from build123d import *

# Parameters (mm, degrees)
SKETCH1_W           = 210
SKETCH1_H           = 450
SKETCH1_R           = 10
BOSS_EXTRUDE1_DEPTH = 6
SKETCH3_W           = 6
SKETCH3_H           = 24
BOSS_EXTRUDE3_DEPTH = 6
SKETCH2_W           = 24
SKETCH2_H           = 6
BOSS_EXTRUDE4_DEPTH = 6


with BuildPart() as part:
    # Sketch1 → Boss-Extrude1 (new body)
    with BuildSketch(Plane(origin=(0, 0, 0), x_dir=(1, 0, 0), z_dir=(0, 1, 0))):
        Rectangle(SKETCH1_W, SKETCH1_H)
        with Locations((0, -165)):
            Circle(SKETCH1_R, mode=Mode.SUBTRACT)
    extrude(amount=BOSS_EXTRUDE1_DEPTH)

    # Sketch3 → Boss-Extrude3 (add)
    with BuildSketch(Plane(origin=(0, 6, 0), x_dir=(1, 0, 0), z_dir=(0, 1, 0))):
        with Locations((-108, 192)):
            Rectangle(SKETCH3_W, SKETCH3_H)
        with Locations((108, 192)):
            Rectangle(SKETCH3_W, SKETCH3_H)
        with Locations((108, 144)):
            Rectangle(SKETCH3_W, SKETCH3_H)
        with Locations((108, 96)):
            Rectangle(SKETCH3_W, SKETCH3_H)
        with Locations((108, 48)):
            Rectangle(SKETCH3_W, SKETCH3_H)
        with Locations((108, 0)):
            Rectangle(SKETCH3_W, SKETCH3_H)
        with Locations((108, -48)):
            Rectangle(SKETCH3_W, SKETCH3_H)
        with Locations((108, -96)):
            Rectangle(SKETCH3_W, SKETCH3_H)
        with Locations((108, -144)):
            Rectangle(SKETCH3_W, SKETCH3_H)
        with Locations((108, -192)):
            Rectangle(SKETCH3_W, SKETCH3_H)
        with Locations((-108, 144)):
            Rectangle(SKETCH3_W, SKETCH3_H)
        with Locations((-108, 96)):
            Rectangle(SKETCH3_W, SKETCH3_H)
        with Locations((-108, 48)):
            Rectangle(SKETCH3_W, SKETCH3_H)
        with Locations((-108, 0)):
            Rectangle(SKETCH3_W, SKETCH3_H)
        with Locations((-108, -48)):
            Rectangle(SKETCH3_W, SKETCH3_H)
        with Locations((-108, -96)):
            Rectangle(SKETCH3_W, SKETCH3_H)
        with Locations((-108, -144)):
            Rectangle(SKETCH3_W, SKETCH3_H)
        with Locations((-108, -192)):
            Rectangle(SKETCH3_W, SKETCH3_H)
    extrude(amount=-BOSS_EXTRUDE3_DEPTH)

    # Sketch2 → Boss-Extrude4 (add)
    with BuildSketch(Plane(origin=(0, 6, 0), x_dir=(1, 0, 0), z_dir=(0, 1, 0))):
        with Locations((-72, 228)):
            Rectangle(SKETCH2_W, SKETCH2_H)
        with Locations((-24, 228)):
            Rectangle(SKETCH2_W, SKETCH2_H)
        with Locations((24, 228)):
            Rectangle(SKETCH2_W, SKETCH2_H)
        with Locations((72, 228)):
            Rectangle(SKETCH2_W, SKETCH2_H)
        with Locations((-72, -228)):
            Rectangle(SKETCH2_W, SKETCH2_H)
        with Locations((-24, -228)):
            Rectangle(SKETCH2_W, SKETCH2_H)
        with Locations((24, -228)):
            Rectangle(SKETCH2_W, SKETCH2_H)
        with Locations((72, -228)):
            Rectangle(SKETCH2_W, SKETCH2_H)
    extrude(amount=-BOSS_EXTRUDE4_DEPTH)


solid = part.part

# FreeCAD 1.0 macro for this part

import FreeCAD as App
import Part
import Sketcher

V = App.Vector
Q = App.Units.Quantity


def add_polygon(sketch, points):
    """Adds a closed chain of lines whose ends are joined by coincident constraints."""
    first, n = sketch.GeometryCount, len(points)
    for a, b in zip(points, points[1:] + points[:1]):
        sketch.addGeometry(Part.LineSegment(App.Vector(*a, 0), App.Vector(*b, 0)), False)
    for i in range(n):
        sketch.addConstraint(Sketcher.Constraint("Coincident", first + i, 2, first + (i + 1) % n, 1))

doc = App.newDocument("Part")
params = doc.addObject("Spreadsheet::Sheet", "Params")
for row, (alias, value) in enumerate([
    ("sketch1_diameter", "20 mm"),
    ("sketch1_width", "210 mm"),
    ("sketch1_height", "450 mm"),
    ("pad1_length", "6 mm"),
    ("sketch2_width", "6 mm"),
    ("sketch2_height", "24 mm"),
    ("pad2_length", "6 mm"),
    ("sketch3_width", "24 mm"),
    ("sketch3_height", "6 mm"),
    ("pad3_length", "6 mm"),
], start=1):
    params.set(f"A{row}", alias)
    params.set(f"B{row}", "=" + value)
    params.setAlias(f"B{row}", alias)

body = doc.addObject("PartDesign::Body", "Body")

sketch1 = doc.addObject("Sketcher::SketchObject", "Sketch")
body.addObject(sketch1)
sketch1.AttachmentSupport = (doc.XZ_Plane, [""])
sketch1.MapMode = "FlatFace"
add_polygon(sketch1, [(-105, -225), (-105, 225), (105, 225), (105, -225)])
sketch1.addGeometry(Part.Circle(V(0, 165, 0), V(0, 0, 1), 10), False)
sketch1.addConstraint(Sketcher.Constraint("Vertical", 0))
sketch1.addConstraint(Sketcher.Constraint("Horizontal", 1))
sketch1.addConstraint(Sketcher.Constraint("Vertical", 2))
sketch1.addConstraint(Sketcher.Constraint("Horizontal", 3))
sketch1.addConstraint(Sketcher.Constraint("Symmetric", 0, 2, 2, 2, -1, 1))
sketch1.addConstraint(Sketcher.Constraint("PointOnObject", 4, 3, -2))
sketch1.addConstraint(Sketcher.Constraint("Diameter", 4, Q("20 mm")))
sketch1.addConstraint(Sketcher.Constraint("DistanceX", 1, 1, 1, 2, Q("210 mm")))
sketch1.addConstraint(Sketcher.Constraint("DistanceY", 0, 1, 0, 2, Q("450 mm")))
sketch1.addConstraint(Sketcher.Constraint("DistanceY", -1, 1, 4, 3, Q("165 mm")))
sketch1.setExpression("Constraints[10]", "Params.sketch1_diameter")
sketch1.setExpression("Constraints[11]", "Params.sketch1_width")
sketch1.setExpression("Constraints[12]", "Params.sketch1_height")
pad1 = doc.addObject("PartDesign::Pad", "Pad")
body.addObject(pad1)
pad1.Profile = sketch1
pad1.setExpression("Length", "Params.pad1_length")
pad1.Reversed = True

sketch2 = doc.addObject("Sketcher::SketchObject", "Sketch001")
body.addObject(sketch2)
sketch2.AttachmentSupport = (doc.XZ_Plane, [""])
sketch2.MapMode = "FlatFace"
sketch2.AttachmentOffset = App.Placement(V(0, 0, -6), App.Rotation())
add_polygon(sketch2, [(-111, -204), (-111, -180), (-105, -180), (-105, -204)])
add_polygon(sketch2, [(105, -204), (105, -180), (111, -180), (111, -204)])
add_polygon(sketch2, [(105, -156), (105, -132), (111, -132), (111, -156)])
add_polygon(sketch2, [(105, -108), (105, -84), (111, -84), (111, -108)])
add_polygon(sketch2, [(105, -60), (105, -36), (111, -36), (111, -60)])
add_polygon(sketch2, [(105, -12), (105, 12), (111, 12), (111, -12)])
add_polygon(sketch2, [(105, 36), (105, 60), (111, 60), (111, 36)])
add_polygon(sketch2, [(105, 84), (105, 108), (111, 108), (111, 84)])
add_polygon(sketch2, [(105, 132), (105, 156), (111, 156), (111, 132)])
add_polygon(sketch2, [(105, 180), (105, 204), (111, 204), (111, 180)])
add_polygon(sketch2, [(-111, -156), (-111, -132), (-105, -132), (-105, -156)])
add_polygon(sketch2, [(-111, -108), (-111, -84), (-105, -84), (-105, -108)])
add_polygon(sketch2, [(-111, -60), (-111, -36), (-105, -36), (-105, -60)])
add_polygon(sketch2, [(-111, -12), (-111, 12), (-105, 12), (-105, -12)])
add_polygon(sketch2, [(-111, 36), (-111, 60), (-105, 60), (-105, 36)])
add_polygon(sketch2, [(-111, 84), (-111, 108), (-105, 108), (-105, 84)])
add_polygon(sketch2, [(-111, 132), (-111, 156), (-105, 156), (-105, 132)])
add_polygon(sketch2, [(-111, 180), (-111, 204), (-105, 204), (-105, 180)])
sketch2.addConstraint(Sketcher.Constraint("Vertical", 0))
sketch2.addConstraint(Sketcher.Constraint("Horizontal", 1))
sketch2.addConstraint(Sketcher.Constraint("Vertical", 2))
sketch2.addConstraint(Sketcher.Constraint("Horizontal", 3))
sketch2.addConstraint(Sketcher.Constraint("Vertical", 4))
sketch2.addConstraint(Sketcher.Constraint("Horizontal", 5))
sketch2.addConstraint(Sketcher.Constraint("Vertical", 6))
sketch2.addConstraint(Sketcher.Constraint("Horizontal", 7))
sketch2.addConstraint(Sketcher.Constraint("Vertical", 8))
sketch2.addConstraint(Sketcher.Constraint("Horizontal", 9))
sketch2.addConstraint(Sketcher.Constraint("Vertical", 10))
sketch2.addConstraint(Sketcher.Constraint("Horizontal", 11))
sketch2.addConstraint(Sketcher.Constraint("Vertical", 12))
sketch2.addConstraint(Sketcher.Constraint("Horizontal", 13))
sketch2.addConstraint(Sketcher.Constraint("Vertical", 14))
sketch2.addConstraint(Sketcher.Constraint("Horizontal", 15))
sketch2.addConstraint(Sketcher.Constraint("Vertical", 16))
sketch2.addConstraint(Sketcher.Constraint("Horizontal", 17))
sketch2.addConstraint(Sketcher.Constraint("Vertical", 18))
sketch2.addConstraint(Sketcher.Constraint("Horizontal", 19))
sketch2.addConstraint(Sketcher.Constraint("Vertical", 20))
sketch2.addConstraint(Sketcher.Constraint("Horizontal", 21))
sketch2.addConstraint(Sketcher.Constraint("Vertical", 22))
sketch2.addConstraint(Sketcher.Constraint("Horizontal", 23))
sketch2.addConstraint(Sketcher.Constraint("Vertical", 24))
sketch2.addConstraint(Sketcher.Constraint("Horizontal", 25))
sketch2.addConstraint(Sketcher.Constraint("Vertical", 26))
sketch2.addConstraint(Sketcher.Constraint("Horizontal", 27))
sketch2.addConstraint(Sketcher.Constraint("Vertical", 28))
sketch2.addConstraint(Sketcher.Constraint("Horizontal", 29))
sketch2.addConstraint(Sketcher.Constraint("Vertical", 30))
sketch2.addConstraint(Sketcher.Constraint("Horizontal", 31))
sketch2.addConstraint(Sketcher.Constraint("Vertical", 32))
sketch2.addConstraint(Sketcher.Constraint("Horizontal", 33))
sketch2.addConstraint(Sketcher.Constraint("Vertical", 34))
sketch2.addConstraint(Sketcher.Constraint("Horizontal", 35))
sketch2.addConstraint(Sketcher.Constraint("Vertical", 36))
sketch2.addConstraint(Sketcher.Constraint("Horizontal", 37))
sketch2.addConstraint(Sketcher.Constraint("Vertical", 38))
sketch2.addConstraint(Sketcher.Constraint("Horizontal", 39))
sketch2.addConstraint(Sketcher.Constraint("Vertical", 40))
sketch2.addConstraint(Sketcher.Constraint("Horizontal", 41))
sketch2.addConstraint(Sketcher.Constraint("Vertical", 42))
sketch2.addConstraint(Sketcher.Constraint("Horizontal", 43))
sketch2.addConstraint(Sketcher.Constraint("Vertical", 44))
sketch2.addConstraint(Sketcher.Constraint("Horizontal", 45))
sketch2.addConstraint(Sketcher.Constraint("Vertical", 46))
sketch2.addConstraint(Sketcher.Constraint("Horizontal", 47))
sketch2.addConstraint(Sketcher.Constraint("Vertical", 48))
sketch2.addConstraint(Sketcher.Constraint("Horizontal", 49))
sketch2.addConstraint(Sketcher.Constraint("Vertical", 50))
sketch2.addConstraint(Sketcher.Constraint("Horizontal", 51))
sketch2.addConstraint(Sketcher.Constraint("Vertical", 52))
sketch2.addConstraint(Sketcher.Constraint("Horizontal", 53))
sketch2.addConstraint(Sketcher.Constraint("Vertical", 54))
sketch2.addConstraint(Sketcher.Constraint("Horizontal", 55))
sketch2.addConstraint(Sketcher.Constraint("Vertical", 56))
sketch2.addConstraint(Sketcher.Constraint("Horizontal", 57))
sketch2.addConstraint(Sketcher.Constraint("Vertical", 58))
sketch2.addConstraint(Sketcher.Constraint("Horizontal", 59))
sketch2.addConstraint(Sketcher.Constraint("Vertical", 60))
sketch2.addConstraint(Sketcher.Constraint("Horizontal", 61))
sketch2.addConstraint(Sketcher.Constraint("Vertical", 62))
sketch2.addConstraint(Sketcher.Constraint("Horizontal", 63))
sketch2.addConstraint(Sketcher.Constraint("Vertical", 64))
sketch2.addConstraint(Sketcher.Constraint("Horizontal", 65))
sketch2.addConstraint(Sketcher.Constraint("Vertical", 66))
sketch2.addConstraint(Sketcher.Constraint("Horizontal", 67))
sketch2.addConstraint(Sketcher.Constraint("Vertical", 68))
sketch2.addConstraint(Sketcher.Constraint("Horizontal", 69))
sketch2.addConstraint(Sketcher.Constraint("Vertical", 70))
sketch2.addConstraint(Sketcher.Constraint("Horizontal", 71))
sketch2.addConstraint(Sketcher.Constraint("Symmetric", 2, 2, 36, 2, -1, 1))
sketch2.addConstraint(Sketcher.Constraint("Symmetric", 0, 2, 38, 2, -1, 1))
sketch2.addConstraint(Sketcher.Constraint("Symmetric", 34, 2, 40, 2, -1, 1))
sketch2.addConstraint(Sketcher.Constraint("Symmetric", 32, 2, 42, 2, -1, 1))
sketch2.addConstraint(Sketcher.Constraint("Symmetric", 30, 2, 44, 2, -1, 1))
sketch2.addConstraint(Sketcher.Constraint("Symmetric", 28, 2, 46, 2, -1, 1))
sketch2.addConstraint(Sketcher.Constraint("Symmetric", 26, 2, 48, 2, -1, 1))
sketch2.addConstraint(Sketcher.Constraint("Symmetric", 24, 2, 50, 2, -1, 1))
sketch2.addConstraint(Sketcher.Constraint("Symmetric", 22, 2, 52, 2, -1, 1))
sketch2.addConstraint(Sketcher.Constraint("Symmetric", 20, 2, 54, 2, -1, 1))
sketch2.addConstraint(Sketcher.Constraint("Symmetric", 18, 2, 56, 2, -1, 1))
sketch2.addConstraint(Sketcher.Constraint("Symmetric", 16, 2, 58, 2, -1, 1))
sketch2.addConstraint(Sketcher.Constraint("Symmetric", 14, 2, 60, 2, -1, 1))
sketch2.addConstraint(Sketcher.Constraint("Symmetric", 12, 2, 62, 2, -1, 1))
sketch2.addConstraint(Sketcher.Constraint("Symmetric", 10, 2, 64, 2, -1, 1))
sketch2.addConstraint(Sketcher.Constraint("Symmetric", 8, 2, 66, 2, -1, 1))
sketch2.addConstraint(Sketcher.Constraint("Symmetric", 6, 2, 68, 2, -1, 1))
sketch2.addConstraint(Sketcher.Constraint("Symmetric", 4, 2, 70, 2, -1, 1))
sketch2.addConstraint(Sketcher.Constraint("Symmetric", 1, 2, 4, 2, -2))
sketch2.addConstraint(Sketcher.Constraint("Symmetric", 3, 2, 6, 2, -2))
sketch2.addConstraint(Sketcher.Constraint("Symmetric", 9, 2, 40, 2, -2))
sketch2.addConstraint(Sketcher.Constraint("Symmetric", 11, 2, 42, 2, -2))
sketch2.addConstraint(Sketcher.Constraint("Symmetric", 13, 2, 44, 2, -2))
sketch2.addConstraint(Sketcher.Constraint("Symmetric", 15, 2, 46, 2, -2))
sketch2.addConstraint(Sketcher.Constraint("Symmetric", 17, 2, 48, 2, -2))
sketch2.addConstraint(Sketcher.Constraint("Symmetric", 19, 2, 50, 2, -2))
sketch2.addConstraint(Sketcher.Constraint("Horizontal", 21, 2, 52, 2))
sketch2.addConstraint(Sketcher.Constraint("Vertical", 7, 2, 8, 2))
sketch2.addConstraint(Sketcher.Constraint("Vertical", 6, 2, 9, 2))
sketch2.addConstraint(Sketcher.Constraint("Vertical", 11, 2, 12, 2))
sketch2.addConstraint(Sketcher.Constraint("Vertical", 10, 2, 13, 2))
sketch2.addConstraint(Sketcher.Constraint("Vertical", 15, 2, 16, 2))
sketch2.addConstraint(Sketcher.Constraint("Vertical", 14, 2, 17, 2))
sketch2.addConstraint(Sketcher.Constraint("Vertical", 19, 2, 20, 2))
sketch2.addConstraint(Sketcher.Constraint("Vertical", 18, 2, 21, 2))
sketch2.addConstraint(Sketcher.Constraint("Equal", 6, 8))
sketch2.addConstraint(Sketcher.Constraint("Equal", 10, 12))
sketch2.addConstraint(Sketcher.Constraint("Equal", 14, 16))
sketch2.addConstraint(Sketcher.Constraint("Equal", 18, 20))
sketch2.addConstraint(Sketcher.Constraint("DistanceX", 1, 1, 1, 2, Q("6 mm")))
sketch2.addConstraint(Sketcher.Constraint("DistanceY", 0, 1, 0, 2, Q("24 mm")))
sketch2.addConstraint(Sketcher.Constraint("DistanceX", 0, 2, -1, 1, Q("111 mm")))
sketch2.addConstraint(Sketcher.Constraint("DistanceY", 0, 2, -1, 1, Q("180 mm")))
sketch2.addConstraint(Sketcher.Constraint("DistanceY", 8, 2, -1, 1, Q("132 mm")))
sketch2.addConstraint(Sketcher.Constraint("DistanceY", 12, 2, -1, 1, Q("84 mm")))
sketch2.addConstraint(Sketcher.Constraint("DistanceY", 16, 2, -1, 1, Q("36 mm")))
sketch2.setExpression("Constraints[183]", "Params.sketch2_width")
sketch2.setExpression("Constraints[184]", "Params.sketch2_height")
pad2 = doc.addObject("PartDesign::Pad", "Pad001")
body.addObject(pad2)
pad2.Profile = sketch2
pad2.setExpression("Length", "Params.pad2_length")

sketch3 = doc.addObject("Sketcher::SketchObject", "Sketch002")
body.addObject(sketch3)
sketch3.AttachmentSupport = (doc.XZ_Plane, [""])
sketch3.MapMode = "FlatFace"
sketch3.AttachmentOffset = App.Placement(V(0, 0, -6), App.Rotation())
add_polygon(sketch3, [(-84, -231), (-84, -225), (-60, -225), (-60, -231)])
add_polygon(sketch3, [(-36, -231), (-36, -225), (-12, -225), (-12, -231)])
add_polygon(sketch3, [(12, -231), (12, -225), (36, -225), (36, -231)])
add_polygon(sketch3, [(60, -231), (60, -225), (84, -225), (84, -231)])
add_polygon(sketch3, [(-84, 225), (-84, 231), (-60, 231), (-60, 225)])
add_polygon(sketch3, [(-36, 225), (-36, 231), (-12, 231), (-12, 225)])
add_polygon(sketch3, [(12, 225), (12, 231), (36, 231), (36, 225)])
add_polygon(sketch3, [(60, 225), (60, 231), (84, 231), (84, 225)])
sketch3.addConstraint(Sketcher.Constraint("Vertical", 0))
sketch3.addConstraint(Sketcher.Constraint("Horizontal", 1))
sketch3.addConstraint(Sketcher.Constraint("Vertical", 2))
sketch3.addConstraint(Sketcher.Constraint("Horizontal", 3))
sketch3.addConstraint(Sketcher.Constraint("Vertical", 4))
sketch3.addConstraint(Sketcher.Constraint("Horizontal", 5))
sketch3.addConstraint(Sketcher.Constraint("Vertical", 6))
sketch3.addConstraint(Sketcher.Constraint("Horizontal", 7))
sketch3.addConstraint(Sketcher.Constraint("Vertical", 8))
sketch3.addConstraint(Sketcher.Constraint("Horizontal", 9))
sketch3.addConstraint(Sketcher.Constraint("Vertical", 10))
sketch3.addConstraint(Sketcher.Constraint("Horizontal", 11))
sketch3.addConstraint(Sketcher.Constraint("Vertical", 12))
sketch3.addConstraint(Sketcher.Constraint("Horizontal", 13))
sketch3.addConstraint(Sketcher.Constraint("Vertical", 14))
sketch3.addConstraint(Sketcher.Constraint("Horizontal", 15))
sketch3.addConstraint(Sketcher.Constraint("Vertical", 16))
sketch3.addConstraint(Sketcher.Constraint("Horizontal", 17))
sketch3.addConstraint(Sketcher.Constraint("Vertical", 18))
sketch3.addConstraint(Sketcher.Constraint("Horizontal", 19))
sketch3.addConstraint(Sketcher.Constraint("Vertical", 20))
sketch3.addConstraint(Sketcher.Constraint("Horizontal", 21))
sketch3.addConstraint(Sketcher.Constraint("Vertical", 22))
sketch3.addConstraint(Sketcher.Constraint("Horizontal", 23))
sketch3.addConstraint(Sketcher.Constraint("Vertical", 24))
sketch3.addConstraint(Sketcher.Constraint("Horizontal", 25))
sketch3.addConstraint(Sketcher.Constraint("Vertical", 26))
sketch3.addConstraint(Sketcher.Constraint("Horizontal", 27))
sketch3.addConstraint(Sketcher.Constraint("Vertical", 28))
sketch3.addConstraint(Sketcher.Constraint("Horizontal", 29))
sketch3.addConstraint(Sketcher.Constraint("Vertical", 30))
sketch3.addConstraint(Sketcher.Constraint("Horizontal", 31))
sketch3.addConstraint(Sketcher.Constraint("Symmetric", 14, 2, 16, 2, -1, 1))
sketch3.addConstraint(Sketcher.Constraint("Symmetric", 12, 2, 18, 2, -1, 1))
sketch3.addConstraint(Sketcher.Constraint("Symmetric", 10, 2, 20, 2, -1, 1))
sketch3.addConstraint(Sketcher.Constraint("Symmetric", 8, 2, 22, 2, -1, 1))
sketch3.addConstraint(Sketcher.Constraint("Symmetric", 6, 2, 24, 2, -1, 1))
sketch3.addConstraint(Sketcher.Constraint("Symmetric", 4, 2, 26, 2, -1, 1))
sketch3.addConstraint(Sketcher.Constraint("Symmetric", 2, 2, 28, 2, -1, 1))
sketch3.addConstraint(Sketcher.Constraint("Symmetric", 0, 2, 30, 2, -1, 1))
sketch3.addConstraint(Sketcher.Constraint("Symmetric", 5, 2, 8, 2, -2))
sketch3.addConstraint(Sketcher.Constraint("Symmetric", 7, 2, 10, 2, -2))
sketch3.addConstraint(Sketcher.Constraint("Symmetric", 1, 2, 12, 2, -2))
sketch3.addConstraint(Sketcher.Constraint("Symmetric", 3, 2, 14, 2, -2))
sketch3.addConstraint(Sketcher.Constraint("Horizontal", 1, 2, 4, 2))
sketch3.addConstraint(Sketcher.Constraint("Horizontal", 3, 2, 6, 2))
sketch3.addConstraint(Sketcher.Constraint("Equal", 3, 5))
sketch3.addConstraint(Sketcher.Constraint("DistanceX", 1, 1, 1, 2, Q("24 mm")))
sketch3.addConstraint(Sketcher.Constraint("DistanceY", 0, 1, 0, 2, Q("6 mm")))
sketch3.addConstraint(Sketcher.Constraint("DistanceX", 0, 2, -1, 1, Q("84 mm")))
sketch3.addConstraint(Sketcher.Constraint("DistanceY", 0, 2, -1, 1, Q("225 mm")))
sketch3.addConstraint(Sketcher.Constraint("DistanceX", 4, 2, -1, 1, Q("36 mm")))
sketch3.setExpression("Constraints[79]", "Params.sketch3_width")
sketch3.setExpression("Constraints[80]", "Params.sketch3_height")
pad3 = doc.addObject("PartDesign::Pad", "Pad002")
body.addObject(pad3)
pad3.Profile = sketch3
pad3.setExpression("Length", "Params.pad3_length")

doc.recompute()
